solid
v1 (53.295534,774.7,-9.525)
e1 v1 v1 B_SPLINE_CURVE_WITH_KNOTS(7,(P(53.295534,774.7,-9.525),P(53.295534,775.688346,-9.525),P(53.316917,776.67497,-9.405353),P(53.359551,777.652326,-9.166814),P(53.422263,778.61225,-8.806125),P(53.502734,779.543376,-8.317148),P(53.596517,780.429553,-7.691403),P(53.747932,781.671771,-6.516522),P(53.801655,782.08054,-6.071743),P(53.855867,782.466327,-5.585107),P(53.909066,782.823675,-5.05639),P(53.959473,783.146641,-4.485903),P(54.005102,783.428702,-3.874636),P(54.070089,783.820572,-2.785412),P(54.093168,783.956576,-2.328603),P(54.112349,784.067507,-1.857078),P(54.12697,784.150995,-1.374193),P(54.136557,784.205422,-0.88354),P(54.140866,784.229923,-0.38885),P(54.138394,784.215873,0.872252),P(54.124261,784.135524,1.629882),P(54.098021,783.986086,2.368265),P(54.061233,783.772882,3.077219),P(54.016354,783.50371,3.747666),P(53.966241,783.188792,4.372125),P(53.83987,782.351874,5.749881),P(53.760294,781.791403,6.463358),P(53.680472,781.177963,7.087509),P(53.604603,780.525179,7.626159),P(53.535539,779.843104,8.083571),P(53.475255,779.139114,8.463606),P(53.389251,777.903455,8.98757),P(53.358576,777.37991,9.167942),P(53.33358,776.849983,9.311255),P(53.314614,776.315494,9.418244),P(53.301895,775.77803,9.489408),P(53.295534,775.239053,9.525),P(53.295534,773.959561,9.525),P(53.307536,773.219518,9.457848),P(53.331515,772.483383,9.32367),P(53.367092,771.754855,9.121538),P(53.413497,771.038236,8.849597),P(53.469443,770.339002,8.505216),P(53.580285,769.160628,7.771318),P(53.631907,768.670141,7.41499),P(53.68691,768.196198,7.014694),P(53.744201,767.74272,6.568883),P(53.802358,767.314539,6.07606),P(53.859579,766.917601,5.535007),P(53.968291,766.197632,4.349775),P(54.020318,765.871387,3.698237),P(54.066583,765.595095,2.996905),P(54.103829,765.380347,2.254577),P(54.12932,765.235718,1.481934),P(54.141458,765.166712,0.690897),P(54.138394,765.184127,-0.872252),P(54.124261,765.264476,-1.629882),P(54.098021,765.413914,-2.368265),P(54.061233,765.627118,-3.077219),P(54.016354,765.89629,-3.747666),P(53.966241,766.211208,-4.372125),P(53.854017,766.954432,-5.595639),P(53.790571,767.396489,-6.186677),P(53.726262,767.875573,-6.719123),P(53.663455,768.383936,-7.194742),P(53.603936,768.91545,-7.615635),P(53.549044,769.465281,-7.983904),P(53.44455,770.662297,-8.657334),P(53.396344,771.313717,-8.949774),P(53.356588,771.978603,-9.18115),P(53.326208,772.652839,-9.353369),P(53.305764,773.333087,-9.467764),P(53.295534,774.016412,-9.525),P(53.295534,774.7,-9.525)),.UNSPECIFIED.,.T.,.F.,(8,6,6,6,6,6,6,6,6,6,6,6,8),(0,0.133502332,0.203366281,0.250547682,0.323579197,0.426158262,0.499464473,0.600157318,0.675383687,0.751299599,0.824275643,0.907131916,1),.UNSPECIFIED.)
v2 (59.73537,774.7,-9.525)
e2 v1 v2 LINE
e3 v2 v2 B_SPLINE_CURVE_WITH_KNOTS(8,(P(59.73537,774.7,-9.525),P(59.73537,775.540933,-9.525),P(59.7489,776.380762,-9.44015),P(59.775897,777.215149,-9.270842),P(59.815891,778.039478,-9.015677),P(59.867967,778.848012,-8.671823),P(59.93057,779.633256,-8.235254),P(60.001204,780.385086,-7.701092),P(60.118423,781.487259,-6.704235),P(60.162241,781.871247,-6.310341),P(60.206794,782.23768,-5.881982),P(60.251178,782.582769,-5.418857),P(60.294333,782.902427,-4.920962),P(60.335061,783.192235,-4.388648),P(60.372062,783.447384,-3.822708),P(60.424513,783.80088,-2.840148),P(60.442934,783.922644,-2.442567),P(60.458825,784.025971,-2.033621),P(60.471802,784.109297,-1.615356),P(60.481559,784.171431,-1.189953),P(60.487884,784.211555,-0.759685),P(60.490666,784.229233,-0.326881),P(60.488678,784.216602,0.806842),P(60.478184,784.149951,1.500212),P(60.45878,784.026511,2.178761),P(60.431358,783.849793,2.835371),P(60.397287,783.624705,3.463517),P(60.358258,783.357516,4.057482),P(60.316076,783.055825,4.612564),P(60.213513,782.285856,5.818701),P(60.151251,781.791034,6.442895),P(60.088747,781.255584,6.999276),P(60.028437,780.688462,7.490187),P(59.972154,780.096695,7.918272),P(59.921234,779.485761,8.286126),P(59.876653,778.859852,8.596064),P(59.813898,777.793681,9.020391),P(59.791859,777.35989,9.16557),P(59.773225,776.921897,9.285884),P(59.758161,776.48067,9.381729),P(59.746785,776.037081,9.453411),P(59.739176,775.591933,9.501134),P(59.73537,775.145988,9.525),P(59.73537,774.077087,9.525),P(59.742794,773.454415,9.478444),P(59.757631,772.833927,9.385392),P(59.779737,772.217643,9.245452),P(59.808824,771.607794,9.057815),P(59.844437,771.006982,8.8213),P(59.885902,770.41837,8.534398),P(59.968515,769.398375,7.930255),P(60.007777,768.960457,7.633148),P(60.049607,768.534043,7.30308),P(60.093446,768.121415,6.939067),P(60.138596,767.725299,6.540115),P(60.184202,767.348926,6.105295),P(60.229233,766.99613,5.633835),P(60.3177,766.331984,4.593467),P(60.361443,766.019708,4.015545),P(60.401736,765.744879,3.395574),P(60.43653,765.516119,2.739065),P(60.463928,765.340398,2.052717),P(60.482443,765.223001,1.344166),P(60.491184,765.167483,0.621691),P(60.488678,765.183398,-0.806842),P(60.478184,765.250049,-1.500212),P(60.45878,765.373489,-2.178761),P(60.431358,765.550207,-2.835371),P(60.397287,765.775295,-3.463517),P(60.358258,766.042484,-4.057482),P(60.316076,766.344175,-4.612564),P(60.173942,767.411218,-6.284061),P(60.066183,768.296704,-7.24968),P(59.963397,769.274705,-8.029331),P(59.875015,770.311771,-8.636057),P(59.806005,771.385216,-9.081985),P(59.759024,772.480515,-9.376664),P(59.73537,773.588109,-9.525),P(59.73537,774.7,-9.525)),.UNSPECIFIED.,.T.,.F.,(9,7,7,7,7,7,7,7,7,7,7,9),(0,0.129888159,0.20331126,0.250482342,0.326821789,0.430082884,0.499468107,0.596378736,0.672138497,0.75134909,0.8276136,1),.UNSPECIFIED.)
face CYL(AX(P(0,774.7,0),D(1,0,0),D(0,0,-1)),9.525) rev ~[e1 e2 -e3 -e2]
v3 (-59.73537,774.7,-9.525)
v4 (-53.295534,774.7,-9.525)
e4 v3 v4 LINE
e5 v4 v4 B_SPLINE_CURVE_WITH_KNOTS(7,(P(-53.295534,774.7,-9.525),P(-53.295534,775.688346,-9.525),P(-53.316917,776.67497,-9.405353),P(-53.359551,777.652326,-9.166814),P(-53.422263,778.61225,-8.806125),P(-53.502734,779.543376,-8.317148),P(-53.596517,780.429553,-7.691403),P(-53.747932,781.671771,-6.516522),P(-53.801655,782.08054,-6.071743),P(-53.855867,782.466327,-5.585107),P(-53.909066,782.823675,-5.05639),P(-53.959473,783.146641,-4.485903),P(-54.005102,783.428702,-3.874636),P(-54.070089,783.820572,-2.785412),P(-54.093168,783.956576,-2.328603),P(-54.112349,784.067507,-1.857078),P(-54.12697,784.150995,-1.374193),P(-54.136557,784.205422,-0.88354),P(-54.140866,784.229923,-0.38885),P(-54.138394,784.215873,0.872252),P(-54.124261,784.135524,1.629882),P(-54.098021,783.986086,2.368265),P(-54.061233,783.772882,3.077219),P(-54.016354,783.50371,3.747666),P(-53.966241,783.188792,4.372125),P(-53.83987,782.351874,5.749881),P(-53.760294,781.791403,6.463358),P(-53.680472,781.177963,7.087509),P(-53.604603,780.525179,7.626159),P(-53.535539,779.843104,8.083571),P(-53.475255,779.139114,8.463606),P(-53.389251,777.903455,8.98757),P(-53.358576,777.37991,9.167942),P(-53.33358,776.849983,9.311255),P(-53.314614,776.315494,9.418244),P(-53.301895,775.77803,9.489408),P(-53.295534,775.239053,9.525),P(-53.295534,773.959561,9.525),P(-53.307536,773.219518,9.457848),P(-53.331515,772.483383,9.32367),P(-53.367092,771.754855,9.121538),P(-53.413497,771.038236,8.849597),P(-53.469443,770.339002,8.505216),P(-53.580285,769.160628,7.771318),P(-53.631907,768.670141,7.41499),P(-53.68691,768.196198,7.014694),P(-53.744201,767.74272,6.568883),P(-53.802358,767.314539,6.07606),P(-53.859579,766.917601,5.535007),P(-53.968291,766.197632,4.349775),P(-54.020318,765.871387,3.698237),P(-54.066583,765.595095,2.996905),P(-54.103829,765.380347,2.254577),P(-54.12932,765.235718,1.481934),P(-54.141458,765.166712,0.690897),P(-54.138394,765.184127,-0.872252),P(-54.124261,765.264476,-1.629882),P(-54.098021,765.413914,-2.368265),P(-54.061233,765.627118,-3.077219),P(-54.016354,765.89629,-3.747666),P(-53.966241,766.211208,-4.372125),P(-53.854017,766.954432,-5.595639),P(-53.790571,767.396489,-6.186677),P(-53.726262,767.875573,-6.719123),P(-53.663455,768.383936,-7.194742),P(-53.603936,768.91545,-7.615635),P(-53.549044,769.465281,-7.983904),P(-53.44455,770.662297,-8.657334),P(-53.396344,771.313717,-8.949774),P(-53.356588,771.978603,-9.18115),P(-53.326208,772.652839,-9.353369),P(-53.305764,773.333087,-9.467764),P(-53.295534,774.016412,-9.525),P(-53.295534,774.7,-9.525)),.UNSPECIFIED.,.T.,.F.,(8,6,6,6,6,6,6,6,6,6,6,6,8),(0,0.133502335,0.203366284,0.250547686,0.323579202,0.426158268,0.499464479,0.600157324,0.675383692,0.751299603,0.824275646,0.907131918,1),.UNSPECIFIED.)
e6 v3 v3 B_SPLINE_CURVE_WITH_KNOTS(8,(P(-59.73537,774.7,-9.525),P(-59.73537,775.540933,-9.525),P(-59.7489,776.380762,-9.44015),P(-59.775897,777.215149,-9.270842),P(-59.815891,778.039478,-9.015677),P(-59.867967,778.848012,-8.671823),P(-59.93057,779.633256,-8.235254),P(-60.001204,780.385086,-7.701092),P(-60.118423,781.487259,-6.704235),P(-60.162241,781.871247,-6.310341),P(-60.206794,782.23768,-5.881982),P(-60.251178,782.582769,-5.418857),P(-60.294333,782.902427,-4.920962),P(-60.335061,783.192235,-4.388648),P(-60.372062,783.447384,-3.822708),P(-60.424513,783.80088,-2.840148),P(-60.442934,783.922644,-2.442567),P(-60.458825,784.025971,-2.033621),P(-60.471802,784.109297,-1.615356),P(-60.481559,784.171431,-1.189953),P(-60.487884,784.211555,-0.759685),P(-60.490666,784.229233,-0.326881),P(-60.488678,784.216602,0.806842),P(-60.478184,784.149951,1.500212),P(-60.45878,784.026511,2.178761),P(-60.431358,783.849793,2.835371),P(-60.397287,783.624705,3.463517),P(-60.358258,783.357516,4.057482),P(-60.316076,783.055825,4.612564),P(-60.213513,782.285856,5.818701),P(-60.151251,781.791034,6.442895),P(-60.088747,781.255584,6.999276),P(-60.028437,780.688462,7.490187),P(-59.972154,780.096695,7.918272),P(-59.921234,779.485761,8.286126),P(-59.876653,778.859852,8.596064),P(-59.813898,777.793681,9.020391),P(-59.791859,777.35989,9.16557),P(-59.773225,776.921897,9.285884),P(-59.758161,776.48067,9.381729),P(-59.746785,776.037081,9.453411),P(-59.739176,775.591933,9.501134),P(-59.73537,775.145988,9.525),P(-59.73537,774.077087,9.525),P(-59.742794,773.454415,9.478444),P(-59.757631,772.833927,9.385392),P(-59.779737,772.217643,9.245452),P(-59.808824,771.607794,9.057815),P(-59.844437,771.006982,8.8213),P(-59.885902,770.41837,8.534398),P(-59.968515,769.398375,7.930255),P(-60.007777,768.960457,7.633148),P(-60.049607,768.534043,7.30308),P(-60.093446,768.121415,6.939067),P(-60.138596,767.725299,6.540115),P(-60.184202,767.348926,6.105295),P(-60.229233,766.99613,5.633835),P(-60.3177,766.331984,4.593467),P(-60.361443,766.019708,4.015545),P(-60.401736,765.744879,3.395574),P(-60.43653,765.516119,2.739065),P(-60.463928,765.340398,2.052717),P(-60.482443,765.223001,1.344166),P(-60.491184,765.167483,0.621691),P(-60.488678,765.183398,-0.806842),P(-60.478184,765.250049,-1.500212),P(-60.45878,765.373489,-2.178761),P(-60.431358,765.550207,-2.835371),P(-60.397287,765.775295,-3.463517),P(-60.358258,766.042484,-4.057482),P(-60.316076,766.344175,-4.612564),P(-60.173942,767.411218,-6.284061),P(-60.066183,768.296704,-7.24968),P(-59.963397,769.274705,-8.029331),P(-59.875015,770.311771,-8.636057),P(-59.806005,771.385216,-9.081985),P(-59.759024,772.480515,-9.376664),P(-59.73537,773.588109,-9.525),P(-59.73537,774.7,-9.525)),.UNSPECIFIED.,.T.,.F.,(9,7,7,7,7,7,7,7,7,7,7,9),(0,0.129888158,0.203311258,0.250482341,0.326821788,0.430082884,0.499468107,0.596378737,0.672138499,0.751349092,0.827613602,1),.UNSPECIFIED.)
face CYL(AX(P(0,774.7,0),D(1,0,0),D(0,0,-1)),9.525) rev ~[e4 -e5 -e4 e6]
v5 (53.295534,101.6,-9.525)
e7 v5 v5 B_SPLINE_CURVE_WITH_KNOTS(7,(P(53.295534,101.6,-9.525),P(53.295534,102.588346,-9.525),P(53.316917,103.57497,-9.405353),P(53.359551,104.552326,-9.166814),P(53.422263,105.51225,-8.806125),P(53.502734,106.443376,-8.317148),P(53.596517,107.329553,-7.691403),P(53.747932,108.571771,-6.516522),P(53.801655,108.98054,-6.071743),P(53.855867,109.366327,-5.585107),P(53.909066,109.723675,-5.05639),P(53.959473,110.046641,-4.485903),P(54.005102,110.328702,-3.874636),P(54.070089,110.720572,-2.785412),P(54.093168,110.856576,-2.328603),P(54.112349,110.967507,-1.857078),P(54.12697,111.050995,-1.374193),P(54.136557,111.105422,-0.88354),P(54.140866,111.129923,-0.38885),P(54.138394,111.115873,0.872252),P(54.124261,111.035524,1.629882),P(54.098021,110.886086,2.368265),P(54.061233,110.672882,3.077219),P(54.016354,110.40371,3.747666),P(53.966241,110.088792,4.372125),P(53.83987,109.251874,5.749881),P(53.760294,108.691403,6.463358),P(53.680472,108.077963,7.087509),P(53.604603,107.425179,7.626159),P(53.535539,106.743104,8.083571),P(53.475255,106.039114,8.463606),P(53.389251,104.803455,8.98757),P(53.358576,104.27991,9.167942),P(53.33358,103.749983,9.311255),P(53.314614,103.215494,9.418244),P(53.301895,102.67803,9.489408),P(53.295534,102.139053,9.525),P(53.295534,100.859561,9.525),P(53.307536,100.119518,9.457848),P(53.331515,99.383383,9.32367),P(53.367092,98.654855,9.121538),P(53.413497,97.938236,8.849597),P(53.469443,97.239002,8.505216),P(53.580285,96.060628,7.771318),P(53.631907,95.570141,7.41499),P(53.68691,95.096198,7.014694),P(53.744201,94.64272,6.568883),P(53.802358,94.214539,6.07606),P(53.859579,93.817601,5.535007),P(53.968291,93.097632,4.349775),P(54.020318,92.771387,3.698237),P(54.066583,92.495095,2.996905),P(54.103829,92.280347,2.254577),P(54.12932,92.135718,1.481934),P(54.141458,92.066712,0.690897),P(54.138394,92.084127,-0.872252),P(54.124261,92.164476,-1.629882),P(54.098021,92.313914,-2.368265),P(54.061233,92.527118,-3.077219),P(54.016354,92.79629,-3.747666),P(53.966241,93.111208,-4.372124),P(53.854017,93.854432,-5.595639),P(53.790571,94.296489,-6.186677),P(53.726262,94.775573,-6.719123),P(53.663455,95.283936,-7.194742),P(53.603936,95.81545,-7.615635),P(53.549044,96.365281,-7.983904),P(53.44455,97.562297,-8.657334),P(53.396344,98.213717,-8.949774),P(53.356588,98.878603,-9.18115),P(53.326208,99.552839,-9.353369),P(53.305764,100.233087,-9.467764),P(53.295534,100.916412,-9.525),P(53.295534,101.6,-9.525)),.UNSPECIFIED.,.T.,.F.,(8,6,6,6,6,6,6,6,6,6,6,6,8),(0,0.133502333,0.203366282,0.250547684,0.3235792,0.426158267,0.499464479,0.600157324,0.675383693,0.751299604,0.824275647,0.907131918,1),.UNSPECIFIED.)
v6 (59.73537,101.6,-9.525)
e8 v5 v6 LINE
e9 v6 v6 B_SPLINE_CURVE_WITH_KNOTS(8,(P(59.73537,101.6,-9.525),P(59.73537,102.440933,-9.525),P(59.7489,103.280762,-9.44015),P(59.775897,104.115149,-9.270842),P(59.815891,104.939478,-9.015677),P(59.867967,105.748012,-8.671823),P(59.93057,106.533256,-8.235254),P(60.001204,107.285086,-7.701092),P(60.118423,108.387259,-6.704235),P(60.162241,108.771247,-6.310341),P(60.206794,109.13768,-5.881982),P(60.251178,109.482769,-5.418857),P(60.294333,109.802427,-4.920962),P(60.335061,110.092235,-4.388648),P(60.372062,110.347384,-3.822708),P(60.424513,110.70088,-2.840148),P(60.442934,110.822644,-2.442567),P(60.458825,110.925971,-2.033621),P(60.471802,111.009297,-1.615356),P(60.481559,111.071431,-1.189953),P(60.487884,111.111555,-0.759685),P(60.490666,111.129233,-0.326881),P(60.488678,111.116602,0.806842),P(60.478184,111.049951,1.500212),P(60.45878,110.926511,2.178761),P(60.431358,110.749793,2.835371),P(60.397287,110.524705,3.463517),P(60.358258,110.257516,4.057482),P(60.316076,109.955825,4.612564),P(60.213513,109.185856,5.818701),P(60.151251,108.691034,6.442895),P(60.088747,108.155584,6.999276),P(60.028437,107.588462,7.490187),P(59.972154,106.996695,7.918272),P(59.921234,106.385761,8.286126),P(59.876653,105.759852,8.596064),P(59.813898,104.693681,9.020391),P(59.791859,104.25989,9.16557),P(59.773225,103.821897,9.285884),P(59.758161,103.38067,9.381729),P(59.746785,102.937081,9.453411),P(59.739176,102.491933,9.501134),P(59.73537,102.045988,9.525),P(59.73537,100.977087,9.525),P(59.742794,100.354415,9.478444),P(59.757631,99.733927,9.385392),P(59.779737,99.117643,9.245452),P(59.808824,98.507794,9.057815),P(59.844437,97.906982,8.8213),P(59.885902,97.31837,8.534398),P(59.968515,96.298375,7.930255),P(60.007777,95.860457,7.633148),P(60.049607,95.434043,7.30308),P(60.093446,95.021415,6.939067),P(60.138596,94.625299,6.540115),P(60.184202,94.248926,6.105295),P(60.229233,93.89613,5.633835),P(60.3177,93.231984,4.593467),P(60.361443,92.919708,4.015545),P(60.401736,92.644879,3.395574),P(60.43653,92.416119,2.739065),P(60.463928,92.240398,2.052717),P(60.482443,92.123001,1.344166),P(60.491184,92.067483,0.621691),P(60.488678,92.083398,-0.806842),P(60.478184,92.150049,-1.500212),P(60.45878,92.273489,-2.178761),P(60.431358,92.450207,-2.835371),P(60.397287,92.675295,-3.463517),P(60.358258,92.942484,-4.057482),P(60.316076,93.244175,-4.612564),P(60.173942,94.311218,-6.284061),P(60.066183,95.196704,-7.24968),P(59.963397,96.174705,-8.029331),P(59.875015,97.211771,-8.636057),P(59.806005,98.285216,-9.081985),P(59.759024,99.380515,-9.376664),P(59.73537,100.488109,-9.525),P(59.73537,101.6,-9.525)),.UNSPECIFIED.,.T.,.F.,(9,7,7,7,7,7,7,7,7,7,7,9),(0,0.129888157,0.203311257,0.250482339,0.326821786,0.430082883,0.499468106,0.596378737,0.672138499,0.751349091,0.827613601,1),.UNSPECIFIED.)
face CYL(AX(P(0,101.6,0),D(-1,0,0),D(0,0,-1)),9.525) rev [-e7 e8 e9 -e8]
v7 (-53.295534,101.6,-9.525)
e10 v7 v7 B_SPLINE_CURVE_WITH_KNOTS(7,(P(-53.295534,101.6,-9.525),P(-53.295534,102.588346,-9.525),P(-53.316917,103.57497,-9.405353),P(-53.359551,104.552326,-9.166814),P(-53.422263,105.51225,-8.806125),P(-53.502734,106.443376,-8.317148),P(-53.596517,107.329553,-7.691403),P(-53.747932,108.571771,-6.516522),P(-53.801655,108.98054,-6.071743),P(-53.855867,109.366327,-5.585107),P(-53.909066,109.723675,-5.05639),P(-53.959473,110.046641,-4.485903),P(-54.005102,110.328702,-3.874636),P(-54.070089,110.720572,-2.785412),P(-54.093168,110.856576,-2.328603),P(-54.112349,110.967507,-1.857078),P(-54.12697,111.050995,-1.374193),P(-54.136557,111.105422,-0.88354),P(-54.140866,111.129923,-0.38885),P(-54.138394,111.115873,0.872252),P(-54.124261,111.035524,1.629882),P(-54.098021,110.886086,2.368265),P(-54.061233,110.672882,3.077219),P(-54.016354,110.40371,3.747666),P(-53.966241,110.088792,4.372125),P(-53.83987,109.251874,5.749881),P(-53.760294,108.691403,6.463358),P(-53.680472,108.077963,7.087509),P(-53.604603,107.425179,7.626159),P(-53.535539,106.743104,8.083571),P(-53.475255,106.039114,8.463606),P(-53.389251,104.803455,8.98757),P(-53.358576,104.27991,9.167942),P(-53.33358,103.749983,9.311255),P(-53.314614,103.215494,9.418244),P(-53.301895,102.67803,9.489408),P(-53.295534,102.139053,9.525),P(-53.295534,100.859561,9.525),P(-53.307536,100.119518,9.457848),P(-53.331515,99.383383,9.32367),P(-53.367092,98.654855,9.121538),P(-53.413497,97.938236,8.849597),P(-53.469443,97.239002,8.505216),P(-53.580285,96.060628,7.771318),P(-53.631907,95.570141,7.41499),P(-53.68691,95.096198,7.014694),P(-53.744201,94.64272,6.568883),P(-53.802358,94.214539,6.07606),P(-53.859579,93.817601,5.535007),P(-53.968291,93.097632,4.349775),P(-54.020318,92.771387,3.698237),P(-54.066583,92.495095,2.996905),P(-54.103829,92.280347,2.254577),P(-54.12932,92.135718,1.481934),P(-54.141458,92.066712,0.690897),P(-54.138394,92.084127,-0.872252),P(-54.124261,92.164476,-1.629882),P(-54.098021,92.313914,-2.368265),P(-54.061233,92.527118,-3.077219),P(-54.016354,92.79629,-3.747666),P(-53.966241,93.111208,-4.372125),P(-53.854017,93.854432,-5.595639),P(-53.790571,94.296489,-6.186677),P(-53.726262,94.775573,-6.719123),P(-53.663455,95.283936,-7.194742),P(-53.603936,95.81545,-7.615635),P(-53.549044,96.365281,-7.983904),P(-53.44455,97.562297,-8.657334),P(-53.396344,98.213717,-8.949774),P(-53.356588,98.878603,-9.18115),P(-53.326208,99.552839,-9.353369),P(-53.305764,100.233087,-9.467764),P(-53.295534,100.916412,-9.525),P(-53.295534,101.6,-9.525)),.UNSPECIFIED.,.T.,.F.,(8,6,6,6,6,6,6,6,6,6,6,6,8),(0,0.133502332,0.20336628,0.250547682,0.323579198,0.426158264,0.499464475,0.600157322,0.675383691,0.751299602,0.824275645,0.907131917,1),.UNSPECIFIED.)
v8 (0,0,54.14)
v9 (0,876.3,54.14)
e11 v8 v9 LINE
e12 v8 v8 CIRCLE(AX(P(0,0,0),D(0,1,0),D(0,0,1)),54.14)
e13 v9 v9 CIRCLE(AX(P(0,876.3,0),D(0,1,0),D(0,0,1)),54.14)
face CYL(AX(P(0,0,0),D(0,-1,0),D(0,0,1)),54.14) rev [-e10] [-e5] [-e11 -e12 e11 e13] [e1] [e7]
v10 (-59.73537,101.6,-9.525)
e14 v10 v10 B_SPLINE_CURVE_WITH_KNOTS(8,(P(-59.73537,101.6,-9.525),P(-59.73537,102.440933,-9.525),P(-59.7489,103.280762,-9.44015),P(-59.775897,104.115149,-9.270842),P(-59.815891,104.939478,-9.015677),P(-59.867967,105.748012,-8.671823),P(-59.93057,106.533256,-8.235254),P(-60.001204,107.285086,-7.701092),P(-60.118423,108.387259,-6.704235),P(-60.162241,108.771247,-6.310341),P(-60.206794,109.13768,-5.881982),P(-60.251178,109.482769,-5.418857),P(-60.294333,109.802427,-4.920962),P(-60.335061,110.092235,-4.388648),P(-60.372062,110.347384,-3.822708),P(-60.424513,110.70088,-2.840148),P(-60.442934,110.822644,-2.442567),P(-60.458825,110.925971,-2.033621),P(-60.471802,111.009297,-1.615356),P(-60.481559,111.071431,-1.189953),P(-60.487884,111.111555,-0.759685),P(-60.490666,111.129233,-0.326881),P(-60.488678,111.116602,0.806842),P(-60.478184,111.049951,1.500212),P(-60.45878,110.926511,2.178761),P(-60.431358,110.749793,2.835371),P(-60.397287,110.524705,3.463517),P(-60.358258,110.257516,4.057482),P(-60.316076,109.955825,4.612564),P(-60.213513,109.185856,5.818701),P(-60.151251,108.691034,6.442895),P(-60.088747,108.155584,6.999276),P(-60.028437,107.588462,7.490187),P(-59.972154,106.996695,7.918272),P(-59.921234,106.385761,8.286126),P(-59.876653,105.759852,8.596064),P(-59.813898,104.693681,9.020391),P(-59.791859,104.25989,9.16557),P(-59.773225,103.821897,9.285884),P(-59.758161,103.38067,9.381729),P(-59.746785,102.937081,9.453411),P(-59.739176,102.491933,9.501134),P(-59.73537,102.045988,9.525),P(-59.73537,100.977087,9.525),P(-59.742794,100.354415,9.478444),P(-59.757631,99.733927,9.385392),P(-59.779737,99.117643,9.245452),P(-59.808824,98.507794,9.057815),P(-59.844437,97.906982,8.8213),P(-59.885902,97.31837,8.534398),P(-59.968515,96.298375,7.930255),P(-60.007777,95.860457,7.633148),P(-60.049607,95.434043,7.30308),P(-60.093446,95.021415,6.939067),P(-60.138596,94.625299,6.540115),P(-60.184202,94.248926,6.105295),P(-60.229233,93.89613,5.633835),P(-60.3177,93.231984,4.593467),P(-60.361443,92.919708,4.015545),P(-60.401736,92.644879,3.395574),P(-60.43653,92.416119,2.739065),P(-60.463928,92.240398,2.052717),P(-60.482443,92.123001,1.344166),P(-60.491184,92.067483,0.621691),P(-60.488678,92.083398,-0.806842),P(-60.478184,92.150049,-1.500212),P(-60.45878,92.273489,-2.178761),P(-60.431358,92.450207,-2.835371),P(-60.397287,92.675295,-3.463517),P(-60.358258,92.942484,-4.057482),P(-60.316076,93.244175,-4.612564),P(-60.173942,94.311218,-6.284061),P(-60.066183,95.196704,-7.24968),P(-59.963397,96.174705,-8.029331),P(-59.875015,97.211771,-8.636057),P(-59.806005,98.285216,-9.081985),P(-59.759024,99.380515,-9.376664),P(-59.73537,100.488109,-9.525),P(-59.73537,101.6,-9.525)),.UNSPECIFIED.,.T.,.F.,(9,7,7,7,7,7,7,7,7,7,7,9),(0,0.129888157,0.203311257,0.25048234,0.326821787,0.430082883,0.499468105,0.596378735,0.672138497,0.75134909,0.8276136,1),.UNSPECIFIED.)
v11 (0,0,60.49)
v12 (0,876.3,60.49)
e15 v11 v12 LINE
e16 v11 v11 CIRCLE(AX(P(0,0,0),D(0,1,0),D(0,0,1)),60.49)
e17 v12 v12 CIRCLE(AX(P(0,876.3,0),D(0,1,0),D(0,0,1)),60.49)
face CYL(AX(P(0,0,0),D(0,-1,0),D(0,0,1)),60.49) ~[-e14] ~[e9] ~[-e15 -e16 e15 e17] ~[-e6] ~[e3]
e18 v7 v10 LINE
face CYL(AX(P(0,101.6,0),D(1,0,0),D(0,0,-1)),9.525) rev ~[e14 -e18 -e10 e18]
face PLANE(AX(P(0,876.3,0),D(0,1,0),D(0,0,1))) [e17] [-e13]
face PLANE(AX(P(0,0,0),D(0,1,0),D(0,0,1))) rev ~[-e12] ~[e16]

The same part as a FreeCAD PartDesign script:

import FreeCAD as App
import Part
import Sketcher
Q = App.Units.Quantity

doc = App.newDocument("Part")
body = doc.addObject("PartDesign::Body", "Body")

sketch1 = body.newObject("Sketcher::SketchObject", "Sketch")
sketch1.AttachmentSupport = (doc.getObject("XZ_Plane"), [""])
sketch1.MapMode = "FlatFace"
sketch1.addGeometry([
    Part.Circle(App.Vector(0, 0, 0), App.Vector(0, 0, 1), 60),
    Part.Circle(App.Vector(0, 0, 0), App.Vector(0, 0, 1), 54),
], False)
sketch1.addConstraint([
    Sketcher.Constraint("Coincident", 0, 3, -1, 1),
    Sketcher.Constraint("Coincident", 1, 3, -1, 1),
    Sketcher.Constraint("Diameter", 0, 120.98),
    Sketcher.Constraint("Diameter", 1, 108.28),
])
pad1 = body.newObject("PartDesign::Pad", "Pad")
pad1.Profile = sketch1
pad1.Length = Q("34.5 in")
pad1.Reversed = True

sketch2 = body.newObject("Sketcher::SketchObject", "Sketch001")
sketch2.AttachmentSupport = (doc.getObject("YZ_Plane"), [""])
sketch2.MapMode = "FlatFace"
sketch2.addGeometry([
    Part.Circle(App.Vector(102, 0, 0), App.Vector(0, 0, 1), 10),
    Part.Circle(App.Vector(775, 0, 0), App.Vector(0, 0, 1), 10),
], False)
sketch2.addConstraint([
    Sketcher.Constraint("Equal", 0, 1),
    Sketcher.Constraint("PointOnObject", 0, 3, -1),
    Sketcher.Constraint("PointOnObject", 1, 3, -1),
    Sketcher.Constraint("Diameter", 0, Q("0.75 in")),
    Sketcher.Constraint("DistanceX", -1, 1, 0, 3, Q("4 in")),
    Sketcher.Constraint("DistanceX", -1, 1, 1, 3, Q("30.5 in")),
])
pocket1 = body.newObject("PartDesign::Pocket", "Pocket")
pocket1.Profile = sketch2
pocket1.Length = Q("34.5 in")
pocket1.Midplane = True

doc.recompute()
